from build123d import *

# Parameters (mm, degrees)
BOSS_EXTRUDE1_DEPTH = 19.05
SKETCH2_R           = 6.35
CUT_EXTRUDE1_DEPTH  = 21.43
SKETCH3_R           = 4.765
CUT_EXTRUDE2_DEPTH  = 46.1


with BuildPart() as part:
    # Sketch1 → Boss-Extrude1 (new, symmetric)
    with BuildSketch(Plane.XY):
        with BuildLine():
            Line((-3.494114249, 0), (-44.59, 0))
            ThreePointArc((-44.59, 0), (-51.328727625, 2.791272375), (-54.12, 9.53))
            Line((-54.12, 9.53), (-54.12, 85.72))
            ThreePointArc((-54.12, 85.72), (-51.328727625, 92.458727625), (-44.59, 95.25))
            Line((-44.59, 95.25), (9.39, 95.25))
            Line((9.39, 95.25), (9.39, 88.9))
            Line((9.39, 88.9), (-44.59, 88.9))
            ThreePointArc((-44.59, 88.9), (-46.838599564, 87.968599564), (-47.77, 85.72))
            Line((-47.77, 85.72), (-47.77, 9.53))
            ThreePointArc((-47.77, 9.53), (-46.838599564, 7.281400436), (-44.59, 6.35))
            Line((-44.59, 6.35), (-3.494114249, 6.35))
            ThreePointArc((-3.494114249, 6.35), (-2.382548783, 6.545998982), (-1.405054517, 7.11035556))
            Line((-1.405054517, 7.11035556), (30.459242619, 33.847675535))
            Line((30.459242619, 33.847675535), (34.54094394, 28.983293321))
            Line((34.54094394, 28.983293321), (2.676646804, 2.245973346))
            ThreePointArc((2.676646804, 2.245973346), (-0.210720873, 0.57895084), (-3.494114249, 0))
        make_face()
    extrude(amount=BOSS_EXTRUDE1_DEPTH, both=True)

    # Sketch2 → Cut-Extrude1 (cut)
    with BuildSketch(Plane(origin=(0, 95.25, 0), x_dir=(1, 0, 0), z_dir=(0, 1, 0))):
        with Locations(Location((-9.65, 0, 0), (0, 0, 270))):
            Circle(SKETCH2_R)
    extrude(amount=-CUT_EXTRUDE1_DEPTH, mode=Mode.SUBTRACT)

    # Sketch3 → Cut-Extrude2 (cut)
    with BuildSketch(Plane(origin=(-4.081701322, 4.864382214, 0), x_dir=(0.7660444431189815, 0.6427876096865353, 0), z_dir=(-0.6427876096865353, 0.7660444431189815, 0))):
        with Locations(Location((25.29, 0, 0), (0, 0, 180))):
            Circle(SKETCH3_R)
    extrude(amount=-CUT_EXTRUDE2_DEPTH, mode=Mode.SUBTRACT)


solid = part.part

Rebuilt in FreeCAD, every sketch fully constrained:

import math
import FreeCAD as App
import Part
import Sketcher
Q = App.Units.Quantity

doc = App.newDocument("Part")
body = doc.addObject("PartDesign::Body", "Body")

# Sketch on XY plane
sketch1 = doc.addObject("Sketcher::SketchObject", "Sketch")
body.addObject(sketch1)
sketch1.AttachmentSupport = (doc.XY_Plane, [""])
sketch1.MapMode = "FlatFace"
sketch1.addGeometry([
    Part.LineSegment(App.Vector(-44.6, 0, 0), App.Vector(-3.5, 0, 0)),  # 0
    Part.ArcOfCircle(Part.Circle(App.Vector(-3.5, 9.6, 0), App.Vector(0, 0, 1), 9.6), math.radians(-90), math.radians(-50)),  # 1
    Part.LineSegment(App.Vector(2.7, 2.2, 0), App.Vector(34.5, 29, 0)),  # 2
    Part.LineSegment(App.Vector(34.5, 29, 0), App.Vector(30.5, 33.8, 0)),  # 3
    Part.LineSegment(App.Vector(30.5, 33.8, 0), App.Vector(-1.4, 7.1, 0)),  # 4
    Part.ArcOfCircle(Part.Circle(App.Vector(-3.5, 9.6, 0), App.Vector(0, 0, 1), 3.2), math.radians(-90), math.radians(-50)),  # 5
    Part.LineSegment(App.Vector(-3.5, 6.3, 0), App.Vector(-44.6, 6.3, 0)),  # 6
    Part.ArcOfCircle(Part.Circle(App.Vector(-44.6, 9.5, 0), App.Vector(0, 0, 1), 3.2), math.radians(-180), math.radians(-90)),  # 7
    Part.LineSegment(App.Vector(-47.8, 9.5, 0), App.Vector(-47.8, 85.7, 0)),  # 8
    Part.ArcOfCircle(Part.Circle(App.Vector(-44.6, 85.7, 0), App.Vector(0, 0, 1), 3.2), math.radians(90), math.radians(180)),  # 9
    Part.LineSegment(App.Vector(-44.6, 88.9, 0), App.Vector(9.4, 88.9, 0)),  # 10
    Part.LineSegment(App.Vector(9.4, 88.9, 0), App.Vector(9.4, 95.2, 0)),  # 11
    Part.LineSegment(App.Vector(9.4, 95.2, 0), App.Vector(-44.6, 95.2, 0)),  # 12
    Part.ArcOfCircle(Part.Circle(App.Vector(-44.6, 85.7, 0), App.Vector(0, 0, 1), 9.5), math.radians(90), math.radians(180)),  # 13
    Part.LineSegment(App.Vector(-54.1, 85.7, 0), App.Vector(-54.1, 9.5, 0)),  # 14
    Part.ArcOfCircle(Part.Circle(App.Vector(-44.6, 9.5, 0), App.Vector(0, 0, 1), 9.5), math.radians(180), math.radians(270)),  # 15
], False)
sketch1.addConstraint([
    Sketcher.Constraint("Tangent", 0, 2, 1, 1),
    Sketcher.Constraint("Tangent", 1, 2, 2, 1),
    Sketcher.Constraint("Coincident", 2, 2, 3, 1),
    Sketcher.Constraint("Coincident", 3, 2, 4, 1),
    Sketcher.Constraint("Tangent", 4, 2, 5, 2),
    Sketcher.Constraint("Tangent", 5, 1, 6, 1),
    Sketcher.Constraint("Tangent", 6, 2, 7, 2),
    Sketcher.Constraint("Tangent", 7, 1, 8, 1),
    Sketcher.Constraint("Tangent", 8, 2, 9, 2),
    Sketcher.Constraint("Tangent", 9, 1, 10, 1),
    Sketcher.Constraint("Coincident", 10, 2, 11, 1),
    Sketcher.Constraint("Coincident", 11, 2, 12, 1),
    Sketcher.Constraint("Tangent", 12, 2, 13, 1),
    Sketcher.Constraint("Tangent", 13, 2, 14, 1),
    Sketcher.Constraint("Tangent", 14, 2, 15, 1),
    Sketcher.Constraint("Tangent", 15, 2, 0, 1),
    Sketcher.Constraint("Horizontal", 0),
    Sketcher.Constraint("Horizontal", 6),
    Sketcher.Constraint("Vertical", 8),
    Sketcher.Constraint("Horizontal", 10),
    Sketcher.Constraint("Vertical", 11),
    Sketcher.Constraint("Horizontal", 12),
    Sketcher.Constraint("Vertical", 14),
    Sketcher.Constraint("Coincident", 5, 3, 1, 3),
    Sketcher.Constraint("Coincident", 13, 3, 9, 3),
    Sketcher.Constraint("Coincident", 15, 3, 7, 3),
    Sketcher.Constraint("Equal", 7, 9),
    Sketcher.Constraint("PointOnObject", 0, 2, -1),
    Sketcher.Constraint("Perpendicular", 2, 3),
    Sketcher.Constraint("Perpendicular", 3, 4),
    Sketcher.Constraint("Radius", 1, Q("9.6 mm")),
    Sketcher.Constraint("Angle", 2, Q("40 deg")),
    Sketcher.Constraint("Radius", 5, Q("3.25 mm")),
    Sketcher.Constraint("Radius", 7, Q("3.18 mm")),
    Sketcher.Constraint("DistanceX", 10, 1, 10, 2, Q("53.98 mm")),
    Sketcher.Constraint("DistanceY", 8, 1, 8, 2, Q("76.19 mm")),
    Sketcher.Constraint("DistanceX", 7, 3, -1, 1, Q("44.59 mm")),
    Sketcher.Constraint("DistanceX", 0, 1, 0, 2, Q("41.095886 mm")),
    Sketcher.Constraint("DistanceY", 1, 2, 2, 2, Q("26.73732 mm")),
])
pad1 = doc.addObject("PartDesign::Pad", "Pad")
body.addObject(pad1)
pad1.Profile = sketch1
pad1.Length = 38.1
pad1.Midplane = True

# Sketch on XZ plane
sketch2 = doc.addObject("Sketcher::SketchObject", "Sketch001")
body.addObject(sketch2)
sketch2.AttachmentSupport = (doc.XZ_Plane, [""])
sketch2.MapMode = "FlatFace"
sketch2.AttachmentOffset = App.Placement(App.Vector(0, 0, -95.25), App.Rotation())
sketch2.addGeometry(Part.Circle(App.Vector(-10, 0, 0), App.Vector(0, 0, 1), 6), False)
sketch2.addConstraint([
    Sketcher.Constraint("PointOnObject", 0, 3, -1),
    Sketcher.Constraint("Diameter", 0, Q("12.7 mm")),
    Sketcher.Constraint("DistanceX", 0, 3, -1, 1, Q("9.65 mm")),
])
pocket1 = doc.addObject("PartDesign::Pocket", "Pocket")
body.addObject(pocket1)
pocket1.Profile = sketch2
pocket1.Length = 21.43
pocket1.Reversed = True

# Sketch on an angled plane
sketch3 = doc.addObject("Sketcher::SketchObject", "Sketch002")
body.addObject(sketch3)
sketch3.Placement = App.Placement(App.Vector(-4.081701, 4.864382, 0), App.Rotation(App.Vector(0.766044443, 0.64278761, 0), App.Vector(0, 0, -1), App.Vector(-0.64278761, 0.766044443, 0), "ZXY"))
sketch3.addGeometry(Part.Circle(App.Vector(25.3, 0, 0), App.Vector(0, 0, 1), 4.8), False)
sketch3.addConstraint([
    Sketcher.Constraint("PointOnObject", 0, 3, -1),
    Sketcher.Constraint("Diameter", 0, Q("9.53 mm")),
    Sketcher.Constraint("DistanceX", -1, 1, 0, 3, Q("25.29 mm")),
])
pocket2 = doc.addObject("PartDesign::Pocket", "Pocket001")
body.addObject(pocket2)
pocket2.Profile = sketch3
pocket2.Length = 46.1

doc.recompute()
